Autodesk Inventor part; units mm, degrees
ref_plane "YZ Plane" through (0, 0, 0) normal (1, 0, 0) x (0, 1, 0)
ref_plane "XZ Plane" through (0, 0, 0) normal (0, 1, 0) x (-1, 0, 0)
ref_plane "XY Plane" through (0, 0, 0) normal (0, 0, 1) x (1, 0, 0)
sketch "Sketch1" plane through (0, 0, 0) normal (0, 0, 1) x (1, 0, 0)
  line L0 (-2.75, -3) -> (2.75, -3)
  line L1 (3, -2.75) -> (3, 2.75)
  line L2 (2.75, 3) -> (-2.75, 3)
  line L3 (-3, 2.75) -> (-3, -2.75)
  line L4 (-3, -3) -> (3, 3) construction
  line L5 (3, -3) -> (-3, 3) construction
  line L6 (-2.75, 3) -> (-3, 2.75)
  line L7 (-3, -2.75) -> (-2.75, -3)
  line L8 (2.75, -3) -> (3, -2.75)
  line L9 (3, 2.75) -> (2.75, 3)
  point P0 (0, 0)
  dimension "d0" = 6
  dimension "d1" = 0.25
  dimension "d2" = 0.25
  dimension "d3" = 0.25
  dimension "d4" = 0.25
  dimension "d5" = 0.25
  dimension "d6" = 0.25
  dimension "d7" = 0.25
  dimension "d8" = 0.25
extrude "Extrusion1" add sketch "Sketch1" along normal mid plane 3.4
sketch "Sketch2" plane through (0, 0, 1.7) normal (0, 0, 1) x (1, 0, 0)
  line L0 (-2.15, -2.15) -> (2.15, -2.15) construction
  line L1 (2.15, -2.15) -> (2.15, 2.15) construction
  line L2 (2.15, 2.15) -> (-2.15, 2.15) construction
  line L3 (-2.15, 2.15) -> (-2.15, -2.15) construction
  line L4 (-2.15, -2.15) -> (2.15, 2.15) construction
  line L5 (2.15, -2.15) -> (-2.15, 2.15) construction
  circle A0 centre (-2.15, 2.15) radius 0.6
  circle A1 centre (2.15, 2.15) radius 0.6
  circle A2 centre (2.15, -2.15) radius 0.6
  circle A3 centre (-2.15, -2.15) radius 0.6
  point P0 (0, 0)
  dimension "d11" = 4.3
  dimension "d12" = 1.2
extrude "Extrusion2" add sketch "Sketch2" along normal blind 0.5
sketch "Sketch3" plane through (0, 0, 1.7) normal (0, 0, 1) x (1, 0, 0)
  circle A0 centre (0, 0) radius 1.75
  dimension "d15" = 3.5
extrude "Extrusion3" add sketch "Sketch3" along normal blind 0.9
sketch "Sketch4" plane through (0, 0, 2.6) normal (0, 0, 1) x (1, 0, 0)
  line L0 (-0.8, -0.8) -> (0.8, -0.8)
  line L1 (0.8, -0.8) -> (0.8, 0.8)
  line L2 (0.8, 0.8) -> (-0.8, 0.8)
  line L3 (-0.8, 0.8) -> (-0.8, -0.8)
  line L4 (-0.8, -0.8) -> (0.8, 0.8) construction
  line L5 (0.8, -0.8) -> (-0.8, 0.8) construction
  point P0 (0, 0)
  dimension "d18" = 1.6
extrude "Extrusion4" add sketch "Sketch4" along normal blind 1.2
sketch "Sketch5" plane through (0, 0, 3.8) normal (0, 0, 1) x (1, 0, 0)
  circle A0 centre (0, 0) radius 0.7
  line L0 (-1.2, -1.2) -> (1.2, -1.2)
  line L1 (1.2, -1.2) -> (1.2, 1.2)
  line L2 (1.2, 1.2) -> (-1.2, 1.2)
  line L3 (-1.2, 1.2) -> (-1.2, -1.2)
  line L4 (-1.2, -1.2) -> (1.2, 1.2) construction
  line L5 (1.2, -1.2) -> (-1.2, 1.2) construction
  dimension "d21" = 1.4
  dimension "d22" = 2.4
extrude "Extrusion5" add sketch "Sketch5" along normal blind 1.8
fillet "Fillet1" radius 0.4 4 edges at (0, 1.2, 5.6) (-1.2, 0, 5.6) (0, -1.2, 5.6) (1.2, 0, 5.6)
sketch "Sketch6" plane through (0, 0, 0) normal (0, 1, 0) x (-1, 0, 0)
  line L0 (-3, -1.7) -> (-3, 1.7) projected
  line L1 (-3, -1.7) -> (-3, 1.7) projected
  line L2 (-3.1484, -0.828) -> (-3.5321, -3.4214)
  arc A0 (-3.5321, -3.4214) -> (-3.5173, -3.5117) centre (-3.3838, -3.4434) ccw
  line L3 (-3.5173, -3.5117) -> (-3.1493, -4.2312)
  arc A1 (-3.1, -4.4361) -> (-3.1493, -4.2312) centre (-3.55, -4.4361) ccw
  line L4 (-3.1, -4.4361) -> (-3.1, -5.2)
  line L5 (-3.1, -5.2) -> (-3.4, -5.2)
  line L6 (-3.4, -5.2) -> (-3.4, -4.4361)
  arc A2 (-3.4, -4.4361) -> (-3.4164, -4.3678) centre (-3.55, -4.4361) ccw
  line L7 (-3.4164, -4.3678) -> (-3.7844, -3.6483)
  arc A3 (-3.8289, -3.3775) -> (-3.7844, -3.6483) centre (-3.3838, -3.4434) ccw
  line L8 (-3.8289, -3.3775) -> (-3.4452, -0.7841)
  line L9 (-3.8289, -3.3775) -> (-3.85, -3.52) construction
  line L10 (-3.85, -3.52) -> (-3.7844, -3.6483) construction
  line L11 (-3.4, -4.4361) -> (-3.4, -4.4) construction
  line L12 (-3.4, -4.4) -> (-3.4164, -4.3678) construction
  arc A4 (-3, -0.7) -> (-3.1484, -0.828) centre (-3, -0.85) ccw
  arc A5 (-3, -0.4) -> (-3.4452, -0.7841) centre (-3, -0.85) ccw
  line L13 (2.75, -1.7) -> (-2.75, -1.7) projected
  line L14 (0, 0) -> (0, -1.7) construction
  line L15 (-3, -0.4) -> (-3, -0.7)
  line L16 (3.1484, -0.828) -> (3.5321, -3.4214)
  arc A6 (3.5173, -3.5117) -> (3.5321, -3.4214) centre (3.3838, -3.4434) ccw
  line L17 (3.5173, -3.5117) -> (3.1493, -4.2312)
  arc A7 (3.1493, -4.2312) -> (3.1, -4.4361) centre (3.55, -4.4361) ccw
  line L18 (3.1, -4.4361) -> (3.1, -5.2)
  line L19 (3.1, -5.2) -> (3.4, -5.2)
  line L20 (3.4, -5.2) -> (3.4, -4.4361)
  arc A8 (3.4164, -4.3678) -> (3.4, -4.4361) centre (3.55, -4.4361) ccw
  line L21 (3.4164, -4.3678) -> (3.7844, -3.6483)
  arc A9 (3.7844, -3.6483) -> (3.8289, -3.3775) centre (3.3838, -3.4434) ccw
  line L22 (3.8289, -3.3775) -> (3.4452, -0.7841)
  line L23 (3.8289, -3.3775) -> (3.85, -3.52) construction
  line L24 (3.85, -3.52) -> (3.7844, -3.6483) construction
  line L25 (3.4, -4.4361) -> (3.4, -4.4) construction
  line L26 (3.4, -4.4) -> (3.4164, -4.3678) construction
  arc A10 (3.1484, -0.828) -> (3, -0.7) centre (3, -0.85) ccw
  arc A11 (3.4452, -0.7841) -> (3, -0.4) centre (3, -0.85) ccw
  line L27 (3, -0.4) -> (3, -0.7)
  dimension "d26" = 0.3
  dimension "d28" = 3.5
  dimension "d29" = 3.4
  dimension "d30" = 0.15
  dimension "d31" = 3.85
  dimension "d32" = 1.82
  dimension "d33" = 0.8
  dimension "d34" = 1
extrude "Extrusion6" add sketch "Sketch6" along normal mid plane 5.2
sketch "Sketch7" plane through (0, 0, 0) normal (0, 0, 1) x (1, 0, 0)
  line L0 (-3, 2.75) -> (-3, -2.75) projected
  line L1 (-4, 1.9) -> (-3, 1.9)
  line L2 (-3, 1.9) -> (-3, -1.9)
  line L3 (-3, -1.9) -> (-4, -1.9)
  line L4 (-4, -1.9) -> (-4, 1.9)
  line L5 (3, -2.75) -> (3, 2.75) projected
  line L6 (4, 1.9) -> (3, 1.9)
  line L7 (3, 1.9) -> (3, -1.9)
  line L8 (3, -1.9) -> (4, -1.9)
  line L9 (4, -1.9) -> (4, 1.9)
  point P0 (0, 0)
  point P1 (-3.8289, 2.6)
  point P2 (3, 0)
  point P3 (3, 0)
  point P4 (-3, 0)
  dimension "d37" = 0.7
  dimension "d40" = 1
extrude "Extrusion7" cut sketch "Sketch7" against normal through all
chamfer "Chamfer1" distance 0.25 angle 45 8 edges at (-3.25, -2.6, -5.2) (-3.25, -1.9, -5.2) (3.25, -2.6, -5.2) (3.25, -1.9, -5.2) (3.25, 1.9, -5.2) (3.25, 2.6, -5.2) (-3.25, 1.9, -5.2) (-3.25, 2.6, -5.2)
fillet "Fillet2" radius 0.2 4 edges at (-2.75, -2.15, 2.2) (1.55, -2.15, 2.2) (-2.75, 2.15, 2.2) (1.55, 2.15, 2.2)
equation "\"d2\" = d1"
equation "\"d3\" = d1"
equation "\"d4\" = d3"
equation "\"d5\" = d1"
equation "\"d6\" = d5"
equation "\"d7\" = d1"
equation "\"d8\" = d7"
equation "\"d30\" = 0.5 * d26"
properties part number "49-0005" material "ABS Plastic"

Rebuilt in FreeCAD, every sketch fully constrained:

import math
import FreeCAD as App
import Part
import Sketcher
Q = App.Units.Quantity


def edges_at(feature, points):
    """Names of the edges that pass closest to the given points."""
    edges = feature.Shape.Edges
    near = lambda p: min(range(len(edges)), key=lambda i: edges[i].distToShape(Part.Vertex(*p))[0])
    return sorted({f"Edge{near(p) + 1}" for p in points})


def add_polygon(sketch, points):
    """Adds a closed chain of lines whose ends are joined by coincident constraints."""
    first, n = sketch.GeometryCount, len(points)
    for a, b in zip(points, points[1:] + points[:1]):
        sketch.addGeometry(Part.LineSegment(App.Vector(*a, 0), App.Vector(*b, 0)), False)
    for i in range(n):
        sketch.addConstraint(Sketcher.Constraint("Coincident", first + i, 2, first + (i + 1) % n, 1))

doc = App.newDocument("Part")
body = doc.addObject("PartDesign::Body", "Body")

sketch1 = body.newObject("Sketcher::SketchObject", "Sketch")
sketch1.AttachmentSupport = (doc.getObject("XY_Plane"), [""])
sketch1.MapMode = "FlatFace"
add_polygon(sketch1, [(-3, -2.75), (-2.75, -3), (2.75, -3), (3, -2.75), (3, 2.75), (2.75, 3), (-2.75, 3), (-3, 2.75)])
sketch1.addConstraint(Sketcher.Constraint("Horizontal", 1))
sketch1.addConstraint(Sketcher.Constraint("Vertical", 3))
sketch1.addConstraint(Sketcher.Constraint("Horizontal", 5))
sketch1.addConstraint(Sketcher.Constraint("Vertical", 7))
sketch1.addConstraint(Sketcher.Constraint("Symmetric", 0, 2, 4, 2, -1, 1))
sketch1.addConstraint(Sketcher.Constraint("Symmetric", 2, 2, 6, 2, -1, 1))
sketch1.addConstraint(Sketcher.Constraint("Perpendicular", 0, 2))
sketch1.addConstraint(Sketcher.Constraint("Perpendicular", 2, 4))
sketch1.addConstraint(Sketcher.Constraint("Perpendicular", 4, 6))
sketch1.addConstraint(Sketcher.Constraint("Horizontal", 3, 2, 6, 2))
sketch1.addConstraint(Sketcher.Constraint("Vertical", 1, 2, 4, 2))
sketch1.addConstraint(Sketcher.Constraint("Equal", 5, 3))
sketch1.addConstraint(Sketcher.Constraint("DistanceY", 1, 2, 4, 2, Q("6 mm")))
sketch1.addConstraint(Sketcher.Constraint("DistanceX", 1, 2, 2, 2, Q("0.25 mm")))
pad1 = body.newObject("PartDesign::Pad", "Pad")
pad1.Profile = sketch1
pad1.Length = 3.4
pad1.Midplane = True

sketch2 = body.newObject("Sketcher::SketchObject", "Sketch001")
sketch2.AttachmentSupport = (doc.getObject("XY_Plane"), [""])
sketch2.MapMode = "FlatFace"
sketch2.AttachmentOffset = App.Placement(App.Vector(0, 0, 1.7), App.Rotation())
sketch2.addGeometry(Part.Circle(App.Vector(-2.1, 2.1, 0), App.Vector(0, 0, 1), 0.6), False)
sketch2.addGeometry(Part.Circle(App.Vector(2.1, 2.1, 0), App.Vector(0, 0, 1), 0.6), False)
sketch2.addGeometry(Part.Circle(App.Vector(2.1, -2.1, 0), App.Vector(0, 0, 1), 0.6), False)
sketch2.addGeometry(Part.Circle(App.Vector(-2.1, -2.1, 0), App.Vector(0, 0, 1), 0.6), False)
sketch2.addConstraint(Sketcher.Constraint("Equal", 0, 1))
sketch2.addConstraint(Sketcher.Constraint("Equal", 1, 2))
sketch2.addConstraint(Sketcher.Constraint("Equal", 2, 3))
sketch2.addConstraint(Sketcher.Constraint("Symmetric", 0, 3, 2, 3, -1, 1))
sketch2.addConstraint(Sketcher.Constraint("Symmetric", 1, 3, 3, 3, -1, 1))
sketch2.addConstraint(Sketcher.Constraint("Symmetric", 0, 3, 1, 3, -2))
sketch2.addConstraint(Sketcher.Constraint("Diameter", 0, Q("1.2 mm")))
sketch2.addConstraint(Sketcher.Constraint("DistanceX", 0, 3, 1, 3, Q("4.3 mm")))
sketch2.addConstraint(Sketcher.Constraint("DistanceY", 2, 3, 1, 3, Q("4.3 mm")))
pad2 = body.newObject("PartDesign::Pad", "Pad001")
pad2.Profile = sketch2
pad2.Length = 0.5

sketch3 = body.newObject("Sketcher::SketchObject", "Sketch002")
sketch3.AttachmentSupport = (doc.getObject("XY_Plane"), [""])
sketch3.MapMode = "FlatFace"
sketch3.AttachmentOffset = App.Placement(App.Vector(0, 0, 1.7), App.Rotation())
sketch3.addGeometry(Part.Circle(App.Vector(0, 0, 0), App.Vector(0, 0, 1), 1.8), False)
sketch3.addConstraint(Sketcher.Constraint("Coincident", 0, 3, -1, 1))
sketch3.addConstraint(Sketcher.Constraint("Diameter", 0, Q("3.5 mm")))
pad3 = body.newObject("PartDesign::Pad", "Pad002")
pad3.Profile = sketch3
pad3.Length = 0.9

sketch4 = body.newObject("Sketcher::SketchObject", "Sketch003")
sketch4.AttachmentSupport = (doc.getObject("XY_Plane"), [""])
sketch4.MapMode = "FlatFace"
sketch4.AttachmentOffset = App.Placement(App.Vector(0, 0, 2.6), App.Rotation())
add_polygon(sketch4, [(-0.8, 0.8), (-0.8, -0.8), (0.8, -0.8), (0.8, 0.8)])
sketch4.addConstraint(Sketcher.Constraint("Vertical", 0))
sketch4.addConstraint(Sketcher.Constraint("Horizontal", 1))
sketch4.addConstraint(Sketcher.Constraint("Vertical", 2))
sketch4.addConstraint(Sketcher.Constraint("Horizontal", 3))
sketch4.addConstraint(Sketcher.Constraint("Symmetric", 0, 2, 2, 2, -1, 1))
sketch4.addConstraint(Sketcher.Constraint("Equal", 3, 0))
sketch4.addConstraint(Sketcher.Constraint("DistanceX", 1, 1, 1, 2, Q("1.6 mm")))
pad4 = body.newObject("PartDesign::Pad", "Pad003")
pad4.Profile = sketch4
pad4.Length = 1.2

sketch5 = body.newObject("Sketcher::SketchObject", "Sketch004")
sketch5.AttachmentSupport = (doc.getObject("XY_Plane"), [""])
sketch5.MapMode = "FlatFace"
sketch5.AttachmentOffset = App.Placement(App.Vector(0, 0, 3.8), App.Rotation())
add_polygon(sketch5, [(-1.2, 1.2), (-1.2, -1.2), (1.2, -1.2), (1.2, 1.2)])
sketch5.addGeometry(Part.Circle(App.Vector(0, 0, 0), App.Vector(0, 0, 1), 0.7), False)
sketch5.addConstraint(Sketcher.Constraint("Vertical", 0))
sketch5.addConstraint(Sketcher.Constraint("Horizontal", 1))
sketch5.addConstraint(Sketcher.Constraint("Vertical", 2))
sketch5.addConstraint(Sketcher.Constraint("Horizontal", 3))
sketch5.addConstraint(Sketcher.Constraint("Coincident", 4, 3, -1, 1))
sketch5.addConstraint(Sketcher.Constraint("Symmetric", 0, 2, 2, 2, -1, 1))
sketch5.addConstraint(Sketcher.Constraint("Equal", 3, 0))
sketch5.addConstraint(Sketcher.Constraint("Diameter", 4, Q("1.4 mm")))
sketch5.addConstraint(Sketcher.Constraint("DistanceX", 1, 1, 1, 2, Q("2.4 mm")))
pad5 = body.newObject("PartDesign::Pad", "Pad004")
pad5.Profile = sketch5
pad5.Length = 1.8
doc.recompute()

fillet = body.newObject("PartDesign::Fillet", "Fillet")
fillet.Base = (pad5, edges_at(pad5, [
    (0, 1.2, 5.6),
    (-1.2, 0, 5.6),
    (0, -1.2, 5.6),
    (1.2, 0, 5.6),
]))
fillet.Radius = 0.4

sketch6 = body.newObject("Sketcher::SketchObject", "Sketch005")
sketch6.AttachmentSupport = (doc.getObject("XZ_Plane"), [""])
sketch6.MapMode = "FlatFace"
sketch6.addGeometry(Part.ArcOfCircle(Part.Circle(App.Vector(3, -0.85, 0), App.Vector(0, 0, 1), 0.15), math.radians(8.432566), math.radians(90)), False)
sketch6.addGeometry(Part.LineSegment(App.Vector(3, -0.7, 0), App.Vector(3, -0.4, 0)), False)
sketch6.addGeometry(Part.ArcOfCircle(Part.Circle(App.Vector(3, -0.85, 0), App.Vector(0, 0, 1), 0.45), math.radians(8.419973), math.radians(90)), False)
sketch6.addGeometry(Part.LineSegment(App.Vector(3.4452, -0.7841, 0), App.Vector(3.8289, -3.3775, 0)), False)
sketch6.addGeometry(Part.ArcOfCircle(Part.Circle(App.Vector(3.3838, -3.4434, 0), App.Vector(0, 0, 1), 0.449952), math.radians(-27.088962), math.radians(8.421837)), False)
sketch6.addGeometry(Part.LineSegment(App.Vector(3.7844, -3.6483, 0), App.Vector(3.4164, -4.3678, 0)), False)
sketch6.addGeometry(Part.ArcOfCircle(Part.Circle(App.Vector(3.55, -4.4361, 0), App.Vector(0, 0, 1), 0.15), math.radians(152.922631), math.radians(180)), False)
sketch6.addGeometry(Part.LineSegment(App.Vector(3.4, -4.4361, 0), App.Vector(3.4, -5.2, 0)), False)
sketch6.addGeometry(Part.LineSegment(App.Vector(3.4, -5.2, 0), App.Vector(3.1, -5.2, 0)), False)
sketch6.addGeometry(Part.LineSegment(App.Vector(3.1, -5.2, 0), App.Vector(3.1, -4.4361, 0)), False)
sketch6.addGeometry(Part.ArcOfCircle(Part.Circle(App.Vector(3.55, -4.4361, 0), App.Vector(0, 0, 1), 0.45), math.radians(152.916836), math.radians(180)), False)
sketch6.addGeometry(Part.LineSegment(App.Vector(3.1493, -4.2312, 0), App.Vector(3.5173, -3.5117, 0)), False)
sketch6.addGeometry(Part.ArcOfCircle(Part.Circle(App.Vector(3.3838, -3.4434, 0), App.Vector(0, 0, 1), 0.149923), math.radians(-27.094761), math.radians(8.43817)), False)
sketch6.addGeometry(Part.LineSegment(App.Vector(3.5321, -3.4214, 0), App.Vector(3.1484, -0.828, 0)), False)
sketch6.addGeometry(Part.ArcOfCircle(Part.Circle(App.Vector(-3, -0.85, 0), App.Vector(0, 0, 1), 0.150022), math.radians(90), math.radians(171.567434)), False)
sketch6.addGeometry(Part.LineSegment(App.Vector(-3.1484, -0.828, 0), App.Vector(-3.5321, -3.4214, 0)), False)
sketch6.addGeometry(Part.ArcOfCircle(Part.Circle(App.Vector(-3.3838, -3.4434, 0), App.Vector(0, 0, 1), 0.149957), math.radians(171.56183), math.radians(207.094761)), False)
sketch6.addGeometry(Part.LineSegment(App.Vector(-3.5173, -3.5117, 0), App.Vector(-3.1493, -4.2312, 0)), False)
sketch6.addGeometry(Part.ArcOfCircle(Part.Circle(App.Vector(-3.55, -4.4361, 0), App.Vector(0, 0, 1), 0.450049), math.radians(0), math.radians(27.083164)), False)
sketch6.addGeometry(Part.LineSegment(App.Vector(-3.1, -4.4361, 0), App.Vector(-3.1, -5.2, 0)), False)
sketch6.addGeometry(Part.LineSegment(App.Vector(-3.1, -5.2, 0), App.Vector(-3.4, -5.2, 0)), False)
sketch6.addGeometry(Part.LineSegment(App.Vector(-3.4, -5.2, 0), App.Vector(-3.4, -4.4361, 0)), False)
sketch6.addGeometry(Part.ArcOfCircle(Part.Circle(App.Vector(-3.55, -4.4361, 0), App.Vector(0, 0, 1), 0.150046), math.radians(0), math.radians(27.077369)), False)
sketch6.addGeometry(Part.LineSegment(App.Vector(-3.4164, -4.3678, 0), App.Vector(-3.7844, -3.6483, 0)), False)
sketch6.addGeometry(Part.ArcOfCircle(Part.Circle(App.Vector(-3.3838, -3.4434, 0), App.Vector(0, 0, 1), 0.44996), math.radians(171.578163), math.radians(207.088962)), False)
sketch6.addGeometry(Part.LineSegment(App.Vector(-3.8289, -3.3775, 0), App.Vector(-3.4452, -0.7841, 0)), False)
sketch6.addGeometry(Part.ArcOfCircle(Part.Circle(App.Vector(-3, -0.85, 0), App.Vector(0, 0, 1), 0.450051), math.radians(90), math.radians(171.580027)), False)
sketch6.addGeometry(Part.LineSegment(App.Vector(-3, -0.4, 0), App.Vector(-3, -0.7, 0)), False)
sketch6.addConstraint(Sketcher.Constraint("Coincident", 0, 2, 1, 1))
sketch6.addConstraint(Sketcher.Constraint("Coincident", 1, 2, 2, 2))
sketch6.addConstraint(Sketcher.Constraint("Coincident", 2, 1, 3, 1))
sketch6.addConstraint(Sketcher.Constraint("Coincident", 3, 2, 4, 2))
sketch6.addConstraint(Sketcher.Constraint("Coincident", 4, 1, 5, 1))
sketch6.addConstraint(Sketcher.Constraint("Coincident", 5, 2, 6, 1))
sketch6.addConstraint(Sketcher.Constraint("Coincident", 6, 2, 7, 1))
sketch6.addConstraint(Sketcher.Constraint("Coincident", 7, 2, 8, 1))
sketch6.addConstraint(Sketcher.Constraint("Coincident", 8, 2, 9, 1))
sketch6.addConstraint(Sketcher.Constraint("Coincident", 9, 2, 10, 2))
sketch6.addConstraint(Sketcher.Constraint("Coincident", 10, 1, 11, 1))
sketch6.addConstraint(Sketcher.Constraint("Coincident", 11, 2, 12, 1))
sketch6.addConstraint(Sketcher.Constraint("Coincident", 12, 2, 13, 1))
sketch6.addConstraint(Sketcher.Constraint("Coincident", 13, 2, 0, 1))
sketch6.addConstraint(Sketcher.Constraint("Coincident", 14, 2, 15, 1))
sketch6.addConstraint(Sketcher.Constraint("Coincident", 15, 2, 16, 1))
sketch6.addConstraint(Sketcher.Constraint("Coincident", 16, 2, 17, 1))
sketch6.addConstraint(Sketcher.Constraint("Coincident", 17, 2, 18, 2))
sketch6.addConstraint(Sketcher.Constraint("Coincident", 18, 1, 19, 1))
sketch6.addConstraint(Sketcher.Constraint("Coincident", 19, 2, 20, 1))
sketch6.addConstraint(Sketcher.Constraint("Coincident", 20, 2, 21, 1))
sketch6.addConstraint(Sketcher.Constraint("Coincident", 21, 2, 22, 1))
sketch6.addConstraint(Sketcher.Constraint("Coincident", 22, 2, 23, 1))
sketch6.addConstraint(Sketcher.Constraint("Coincident", 23, 2, 24, 2))
sketch6.addConstraint(Sketcher.Constraint("Coincident", 24, 1, 25, 1))
sketch6.addConstraint(Sketcher.Constraint("Coincident", 25, 2, 26, 2))
sketch6.addConstraint(Sketcher.Constraint("Coincident", 26, 1, 27, 1))
sketch6.addConstraint(Sketcher.Constraint("Coincident", 27, 2, 14, 1))
sketch6.addConstraint(Sketcher.Constraint("Vertical", 1))
sketch6.addConstraint(Sketcher.Constraint("Vertical", 7))
sketch6.addConstraint(Sketcher.Constraint("Horizontal", 8))
sketch6.addConstraint(Sketcher.Constraint("Vertical", 9))
sketch6.addConstraint(Sketcher.Constraint("Vertical", 19))
sketch6.addConstraint(Sketcher.Constraint("Horizontal", 20))
sketch6.addConstraint(Sketcher.Constraint("Vertical", 21))
sketch6.addConstraint(Sketcher.Constraint("Vertical", 27))
sketch6.addConstraint(Sketcher.Constraint("Coincident", 2, 3, 0, 3))
sketch6.addConstraint(Sketcher.Constraint("Coincident", 10, 3, 6, 3))
sketch6.addConstraint(Sketcher.Constraint("Coincident", 12, 3, 4, 3))
sketch6.addConstraint(Sketcher.Constraint("Coincident", 22, 3, 18, 3))
sketch6.addConstraint(Sketcher.Constraint("Coincident", 24, 3, 16, 3))
sketch6.addConstraint(Sketcher.Constraint("Coincident", 26, 3, 14, 3))
sketch6.addConstraint(Sketcher.Constraint("Radius", 0, Q("0.15 mm")))
sketch6.addConstraint(Sketcher.Constraint("Radius", 6, Q("0.15 mm")))
sketch6.addConstraint(Sketcher.Constraint("Radius", 12, Q("0.15 mm")))
sketch6.addConstraint(Sketcher.Constraint("Radius", 14, Q("0.15 mm")))
sketch6.addConstraint(Sketcher.Constraint("Radius", 16, Q("0.15 mm")))
sketch6.addConstraint(Sketcher.Constraint("Radius", 22, Q("0.15 mm")))
sketch6.addConstraint(Sketcher.Constraint("DistanceX", 8, 2, 8, 1, Q("0.3 mm")))
sketch6.addConstraint(Sketcher.Constraint("DistanceX", 20, 2, 20, 1, Q("0.3 mm")))
sketch6.addConstraint(Sketcher.Constraint("DistanceY", 1, 1, 1, 2, Q("0.3 mm")))
sketch6.addConstraint(Sketcher.Constraint("DistanceY", 27, 2, 27, 1, Q("0.3 mm")))
sketch6.addConstraint(Sketcher.Constraint("DistanceX", -1, 1, 6, 2, Q("3.4 mm")))
sketch6.addConstraint(Sketcher.Constraint("DistanceX", 20, 2, -1, 1, Q("3.4 mm")))
sketch6.addConstraint(Sketcher.Constraint("Radius", 4, Q("0.45 mm")))
sketch6.addConstraint(Sketcher.Constraint("Radius", 24, Q("0.45 mm")))
sketch6.addConstraint(Sketcher.Constraint("DistanceX", -1, 1, 0, 3, Q("3 mm")))
sketch6.addConstraint(Sketcher.Constraint("DistanceX", 14, 3, -1, 1, Q("3 mm")))
sketch6.addConstraint(Sketcher.Constraint("DistanceX", -1, 1, 0, 2, Q("3 mm")))
sketch6.addConstraint(Sketcher.Constraint("DistanceX", 26, 1, -1, 1, Q("3 mm")))
sketch6.addConstraint(Sketcher.Constraint("DistanceY", 0, 2, -1, 1, Q("0.7 mm")))
sketch6.addConstraint(Sketcher.Constraint("DistanceY", 7, 2, -1, 1, Q("5.2 mm")))
sketch6.addConstraint(Sketcher.Constraint("DistanceY", 19, 2, -1, 1, Q("5.2 mm")))
sketch6.addConstraint(Sketcher.Constraint("DistanceY", 26, 1, -1, 1, Q("0.4 mm")))
sketch6.addConstraint(Sketcher.Constraint("DistanceY", 7, 2, 7, 1, Q("0.764 mm")))
sketch6.addConstraint(Sketcher.Constraint("DistanceY", 9, 1, 9, 2, Q("0.764 mm")))
sketch6.addConstraint(Sketcher.Constraint("DistanceY", 19, 2, 19, 1, Q("0.764 mm")))
sketch6.addConstraint(Sketcher.Constraint("DistanceY", 21, 1, 21, 2, Q("0.764 mm")))
sketch6.addConstraint(Sketcher.Constraint("DistanceY", 6, 3, -1, 1, Q("4.436 mm")))
sketch6.addConstraint(Sketcher.Constraint("DistanceY", 18, 3, -1, 1, Q("4.436 mm")))
sketch6.addConstraint(Sketcher.Constraint("DistanceY", 2, 1, -1, 1, Q("0.784 mm")))
sketch6.addConstraint(Sketcher.Constraint("DistanceX", -1, 1, 3, 2, Q("3.829 mm")))
sketch6.addConstraint(Sketcher.Constraint("DistanceX", -1, 1, 12, 2, Q("3.532 mm")))
sketch6.addConstraint(Sketcher.Constraint("DistanceY", 13, 2, -1, 1, Q("0.828 mm")))
sketch6.addConstraint(Sketcher.Constraint("DistanceY", 14, 2, -1, 1, Q("0.828 mm")))
sketch6.addConstraint(Sketcher.Constraint("DistanceX", 15, 2, -1, 1, Q("3.532 mm")))
sketch6.addConstraint(Sketcher.Constraint("DistanceX", 24, 1, -1, 1, Q("3.829 mm")))
sketch6.addConstraint(Sketcher.Constraint("DistanceY", 25, 2, -1, 1, Q("0.784 mm")))
sketch6.addConstraint(Sketcher.Constraint("DistanceX", 4, 3, 3, 2, Q("0.445 mm")))
sketch6.addConstraint(Sketcher.Constraint("DistanceY", 4, 1, 4, 3, Q("0.205 mm")))
sketch6.addConstraint(Sketcher.Constraint("DistanceX", 5, 2, 4, 1, Q("0.368 mm")))
sketch6.addConstraint(Sketcher.Constraint("DistanceX", 10, 1, 5, 2, Q("0.267 mm")))
sketch6.addConstraint(Sketcher.Constraint("DistanceX", 11, 2, 4, 1, Q("0.267 mm")))
sketch6.addConstraint(Sketcher.Constraint("DistanceY", 16, 3, 15, 2, Q("0.022 mm")))
sketch6.addConstraint(Sketcher.Constraint("DistanceY", 18, 3, 17, 2, Q("0.205 mm")))
sketch6.addConstraint(Sketcher.Constraint("DistanceX", 16, 2, 17, 2, Q("0.368 mm")))
sketch6.addConstraint(Sketcher.Constraint("DistanceX", 22, 2, 17, 2, Q("0.267 mm")))
sketch6.addConstraint(Sketcher.Constraint("DistanceX", 23, 2, 16, 2, Q("0.267 mm")))
sketch6.addConstraint(Sketcher.Constraint("Distance", 3, Q("2.6216 mm")))
sketch6.addConstraint(Sketcher.Constraint("Distance", 15, Q("2.6216 mm")))
pad6 = body.newObject("PartDesign::Pad", "Pad005")
pad6.Profile = sketch6
pad6.Length = 5.2
pad6.Midplane = True

sketch7 = body.newObject("Sketcher::SketchObject", "Sketch006")
sketch7.AttachmentSupport = (doc.getObject("XY_Plane"), [""])
sketch7.MapMode = "FlatFace"
add_polygon(sketch7, [(-3, -1.9), (-3, 1.9), (-4, 1.9), (-4, -1.9)])
add_polygon(sketch7, [(3, 1.9), (3, -1.9), (4, -1.9), (4, 1.9)])
sketch7.addConstraint(Sketcher.Constraint("Vertical", 0))
sketch7.addConstraint(Sketcher.Constraint("Horizontal", 1))
sketch7.addConstraint(Sketcher.Constraint("Vertical", 2))
sketch7.addConstraint(Sketcher.Constraint("Horizontal", 3))
sketch7.addConstraint(Sketcher.Constraint("Vertical", 4))
sketch7.addConstraint(Sketcher.Constraint("Horizontal", 5))
sketch7.addConstraint(Sketcher.Constraint("Vertical", 6))
sketch7.addConstraint(Sketcher.Constraint("Horizontal", 7))
sketch7.addConstraint(Sketcher.Constraint("Symmetric", 0, 2, 4, 2, -1, 1))
sketch7.addConstraint(Sketcher.Constraint("Symmetric", 2, 2, 6, 2, -1, 1))
sketch7.addConstraint(Sketcher.Constraint("Horizontal", 3, 2, 4, 2))
sketch7.addConstraint(Sketcher.Constraint("DistanceX", 1, 2, 1, 1, Q("1 mm")))
sketch7.addConstraint(Sketcher.Constraint("DistanceY", 0, 1, 0, 2, Q("3.8 mm")))
sketch7.addConstraint(Sketcher.Constraint("DistanceX", 0, 2, -1, 1, Q("3 mm")))
pocket1 = body.newObject("PartDesign::Pocket", "Pocket")
pocket1.Profile = sketch7
pocket1.Type = "ThroughAll"
doc.recompute()

chamfer = body.newObject("PartDesign::Chamfer", "Chamfer")
chamfer.Base = (pocket1, edges_at(pocket1, [
    (-3.25, -2.6, -5.2),
    (-3.25, -1.9, -5.2),
    (3.25, -2.6, -5.2),
    (3.25, -1.9, -5.2),
    (3.25, 1.9, -5.2),
    (3.25, 2.6, -5.2),
    (-3.25, 1.9, -5.2),
    (-3.25, 2.6, -5.2),
]))
chamfer.Size = 0.25
doc.recompute()

fillet2 = body.newObject("PartDesign::Fillet", "Fillet001")
fillet2.Base = (chamfer, edges_at(chamfer, [
    (-2.75, -2.15, 2.2),
    (1.55, -2.15, 2.2),
    (-2.75, 2.15, 2.2),
    (1.55, 2.15, 2.2),
]))
fillet2.Radius = 0.2

doc.recompute()
